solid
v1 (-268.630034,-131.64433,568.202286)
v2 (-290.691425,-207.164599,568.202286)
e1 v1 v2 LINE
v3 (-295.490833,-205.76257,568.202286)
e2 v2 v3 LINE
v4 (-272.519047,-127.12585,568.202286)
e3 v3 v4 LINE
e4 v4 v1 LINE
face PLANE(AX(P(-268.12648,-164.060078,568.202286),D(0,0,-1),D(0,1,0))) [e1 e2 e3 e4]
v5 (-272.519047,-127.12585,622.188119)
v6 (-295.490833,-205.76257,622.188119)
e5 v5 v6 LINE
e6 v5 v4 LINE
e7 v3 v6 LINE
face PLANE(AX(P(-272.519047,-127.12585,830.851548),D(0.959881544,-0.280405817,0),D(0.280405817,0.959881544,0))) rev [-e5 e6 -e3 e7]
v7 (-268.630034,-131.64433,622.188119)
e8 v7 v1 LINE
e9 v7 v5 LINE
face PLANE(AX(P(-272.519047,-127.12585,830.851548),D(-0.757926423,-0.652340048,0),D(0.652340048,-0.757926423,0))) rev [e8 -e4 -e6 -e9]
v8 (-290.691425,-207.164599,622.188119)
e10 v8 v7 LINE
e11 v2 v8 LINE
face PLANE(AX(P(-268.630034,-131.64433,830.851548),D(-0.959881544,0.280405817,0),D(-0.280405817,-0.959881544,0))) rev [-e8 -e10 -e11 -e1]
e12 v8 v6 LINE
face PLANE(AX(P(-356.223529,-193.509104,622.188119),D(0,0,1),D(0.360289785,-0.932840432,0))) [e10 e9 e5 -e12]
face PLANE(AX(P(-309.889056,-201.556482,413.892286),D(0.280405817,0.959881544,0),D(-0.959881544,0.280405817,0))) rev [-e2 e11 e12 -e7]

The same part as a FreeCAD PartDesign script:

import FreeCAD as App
import Part
import Sketcher

doc = App.newDocument("Part")
body = doc.addObject("PartDesign::Body", "Body")

sketch1 = body.newObject("Sketcher::SketchObject", "Sketch")
sketch1.AttachmentSupport = (doc.getObject("XY_Plane"), [""])
sketch1.MapMode = "FlatFace"
sketch1.AttachmentOffset = App.Placement(App.Vector(0, 0, 413.892286), App.Rotation())
sketch1.addGeometry([
    Part.LineSegment(App.Vector(-268.630034, -131.64433, 0), App.Vector(-272.519047, -127.12585, 0)),
    Part.LineSegment(App.Vector(-272.519047, -127.12585, 0), App.Vector(-330.714339, -326.339217, 0)),
    Part.LineSegment(App.Vector(-330.714339, -326.339217, 0), App.Vector(-324.842905, -324.0715, 0)),
    Part.LineSegment(App.Vector(-324.842905, -324.0715, 0), App.Vector(-268.630034, -131.64433, 0)),
], False)
sketch1.addConstraint([
    Sketcher.Constraint("Coincident", 0, 2, 1, 1),
    Sketcher.Constraint("Coincident", 1, 2, 2, 1),
    Sketcher.Constraint("Coincident", 2, 2, 3, 1),
    Sketcher.Constraint("Coincident", 3, 2, 0, 1),
    Sketcher.Constraint("Parallel", 1, 3),
    Sketcher.Constraint("DistanceY", 2, 2, -1, 1, 324.0715),
    Sketcher.Constraint("DistanceY", 0, 2, -1, 1, 127.12585),
    Sketcher.Constraint("DistanceX", 1, 2, -1, 1, 330.714339),
    Sketcher.Constraint("DistanceY", 3, 2, -1, 1, 131.64433),
    Sketcher.Constraint("DistanceX", 2, 2, 0, 2, 52.323859),
    Sketcher.Constraint("DistanceX", 2, 2, 3, 2, 56.212872),
    Sketcher.Constraint("Distance", 1, 207.539533),
])
pad1 = body.newObject("PartDesign::Pad", "Pad")
pad1.Profile = sketch1
pad1.Length = 208.295833

sketch2 = body.newObject("Sketcher::SketchObject", "Sketch001")
sketch2.Placement = App.Placement(App.Vector(-212.075437, 61.95263, 0), App.Rotation(App.Vector(0, 0, -1), App.Vector(0.280405817, 0.959881544, 0), App.Vector(0.959881544, -0.280405817, 0), "ZXY"))
sketch2.addGeometry([
    Part.LineSegment(App.Vector(-622.188119, -280.365042, 0), App.Vector(-622.188119, -405.981216, 0)),
    Part.LineSegment(App.Vector(-622.188119, -405.981216, 0), App.Vector(-413.892286, -405.981216, 0)),
    Part.LineSegment(App.Vector(-413.892286, -405.981216, 0), App.Vector(-413.892286, -280.365042, 0)),
    Part.LineSegment(App.Vector(-413.892286, -280.365042, 0), App.Vector(-622.188119, -280.365042, 0)),
], False)
sketch2.addConstraint([
    Sketcher.Constraint("Coincident", 0, 2, 1, 1),
    Sketcher.Constraint("Coincident", 1, 2, 2, 1),
    Sketcher.Constraint("Coincident", 2, 2, 3, 1),
    Sketcher.Constraint("Coincident", 3, 2, 0, 1),
    Sketcher.Constraint("Vertical", 0),
    Sketcher.Constraint("Horizontal", 1),
    Sketcher.Constraint("Vertical", 2),
    Sketcher.Constraint("Horizontal", 3),
    Sketcher.Constraint("DistanceX", 1, 1, 1, 2, 208.295833),
    Sketcher.Constraint("DistanceY", 0, 2, 0, 1, 125.616174),
    Sketcher.Constraint("DistanceX", 0, 2, -1, 1, 622.188119),
    Sketcher.Constraint("DistanceY", 2, 2, -1, 1, 280.365042),
])
pocket1 = body.newObject("PartDesign::Pocket", "Pocket")
pocket1.Profile = sketch2
pocket1.Length = 20

sketch3 = body.newObject("Sketcher::SketchObject", "Sketch002")
sketch3.AttachmentSupport = (doc.getObject("XY_Plane"), [""])
sketch3.MapMode = "FlatFace"
sketch3.AttachmentOffset = App.Placement(App.Vector(0, 0, 568.202286), App.Rotation())
sketch3.addGeometry(Part.Circle(App.Vector(-268.12648, -164.060078, 0), App.Vector(0, 0, 1), 77.5), False)
sketch3.addConstraint([
    Sketcher.Constraint("Diameter", 0, 155.0),
    Sketcher.Constraint("DistanceX", 0, 3, -1, 1, 268.12648),
    Sketcher.Constraint("DistanceY", 0, 3, -1, 1, 164.060078),
])
pocket2 = body.newObject("PartDesign::Pocket", "Pocket001")
pocket2.Profile = sketch3
pocket2.Type = "ThroughAll"

doc.recompute()
